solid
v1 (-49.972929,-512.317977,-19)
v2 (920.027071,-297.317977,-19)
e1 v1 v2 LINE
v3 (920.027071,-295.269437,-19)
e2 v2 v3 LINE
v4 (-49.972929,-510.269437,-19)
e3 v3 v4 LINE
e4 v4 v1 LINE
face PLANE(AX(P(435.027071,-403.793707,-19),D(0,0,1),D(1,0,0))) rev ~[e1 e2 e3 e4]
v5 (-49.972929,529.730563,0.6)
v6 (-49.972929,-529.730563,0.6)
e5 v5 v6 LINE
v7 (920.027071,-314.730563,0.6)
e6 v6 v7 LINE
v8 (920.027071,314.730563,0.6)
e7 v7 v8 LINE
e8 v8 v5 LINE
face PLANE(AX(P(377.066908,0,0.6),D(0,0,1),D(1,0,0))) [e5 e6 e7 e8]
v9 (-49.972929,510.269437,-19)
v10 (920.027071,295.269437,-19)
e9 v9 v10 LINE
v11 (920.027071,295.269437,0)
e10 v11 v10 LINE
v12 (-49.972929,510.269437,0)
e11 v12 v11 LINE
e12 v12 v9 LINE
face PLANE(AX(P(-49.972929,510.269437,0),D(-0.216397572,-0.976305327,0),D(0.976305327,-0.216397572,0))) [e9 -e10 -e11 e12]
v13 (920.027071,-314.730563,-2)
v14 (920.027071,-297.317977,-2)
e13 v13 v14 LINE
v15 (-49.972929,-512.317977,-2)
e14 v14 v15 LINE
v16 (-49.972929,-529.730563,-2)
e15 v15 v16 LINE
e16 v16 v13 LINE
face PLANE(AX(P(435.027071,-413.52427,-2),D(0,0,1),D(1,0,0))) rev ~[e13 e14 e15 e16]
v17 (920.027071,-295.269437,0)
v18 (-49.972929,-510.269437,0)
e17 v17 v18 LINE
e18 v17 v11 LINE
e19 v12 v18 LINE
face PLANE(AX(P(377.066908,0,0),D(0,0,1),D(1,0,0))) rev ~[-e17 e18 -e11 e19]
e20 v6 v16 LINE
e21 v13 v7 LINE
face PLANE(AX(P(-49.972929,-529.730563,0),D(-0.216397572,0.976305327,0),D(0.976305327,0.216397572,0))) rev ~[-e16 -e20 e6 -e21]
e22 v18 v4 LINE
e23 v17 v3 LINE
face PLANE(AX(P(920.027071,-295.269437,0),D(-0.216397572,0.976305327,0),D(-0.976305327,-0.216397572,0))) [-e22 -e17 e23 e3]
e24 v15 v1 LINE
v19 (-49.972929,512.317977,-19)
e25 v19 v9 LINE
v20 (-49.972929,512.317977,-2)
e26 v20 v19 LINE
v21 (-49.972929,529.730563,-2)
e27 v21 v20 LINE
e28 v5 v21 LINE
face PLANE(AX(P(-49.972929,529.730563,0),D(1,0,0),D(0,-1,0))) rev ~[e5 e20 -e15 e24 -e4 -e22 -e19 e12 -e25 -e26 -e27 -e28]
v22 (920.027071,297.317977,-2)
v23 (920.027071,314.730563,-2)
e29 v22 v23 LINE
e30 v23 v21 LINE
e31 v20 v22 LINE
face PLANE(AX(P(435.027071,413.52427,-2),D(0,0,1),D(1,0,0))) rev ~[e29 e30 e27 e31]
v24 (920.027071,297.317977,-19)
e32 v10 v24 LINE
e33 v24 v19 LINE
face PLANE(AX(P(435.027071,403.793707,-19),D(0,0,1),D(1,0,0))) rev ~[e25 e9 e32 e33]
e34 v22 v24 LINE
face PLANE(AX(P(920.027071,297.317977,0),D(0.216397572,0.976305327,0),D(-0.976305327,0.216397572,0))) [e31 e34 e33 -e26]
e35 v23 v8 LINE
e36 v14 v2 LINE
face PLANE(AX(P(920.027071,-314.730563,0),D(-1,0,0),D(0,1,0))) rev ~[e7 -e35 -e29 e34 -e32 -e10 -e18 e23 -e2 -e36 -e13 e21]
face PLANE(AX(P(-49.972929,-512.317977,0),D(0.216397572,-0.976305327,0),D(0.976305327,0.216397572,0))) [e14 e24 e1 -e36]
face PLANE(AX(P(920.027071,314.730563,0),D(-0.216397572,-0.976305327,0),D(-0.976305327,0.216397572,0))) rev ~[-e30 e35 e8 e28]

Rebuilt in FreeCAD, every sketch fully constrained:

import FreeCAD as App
import Part
import Sketcher

V = App.Vector


def add_polygon(sketch, points):
    """Adds a closed chain of lines whose ends are joined by coincident constraints."""
    first, n = sketch.GeometryCount, len(points)
    for a, b in zip(points, points[1:] + points[:1]):
        sketch.addGeometry(Part.LineSegment(App.Vector(*a, 0), App.Vector(*b, 0)), False)
    for i in range(n):
        sketch.addConstraint(Sketcher.Constraint("Coincident", first + i, 2, first + (i + 1) % n, 1))

doc = App.newDocument("Part")
params = doc.addObject("Spreadsheet::Sheet", "Params")
for row, (alias, value) in enumerate([
    ("pad1_length", "19 mm"),
    ("pad2_length", "2 mm"),
    ("pad3_length", "0.6 mm"),
], start=1):
    params.set(f"A{row}", alias)
    params.set(f"B{row}", "=" + value)
    params.setAlias(f"B{row}", alias)

body = doc.addObject("PartDesign::Body", "Body")
body.AllowCompound = True

sketch1 = doc.addObject("Sketcher::SketchObject", "Sketch")
body.addObject(sketch1)
sketch1.AttachmentSupport = (doc.XY_Plane, [""])
sketch1.MapMode = "FlatFace"
add_polygon(sketch1, [(920.027071, -297.317977), (920.027071, -295.269437), (-49.972929, -510.269437), (-49.972929, -512.317977)])
add_polygon(sketch1, [(-49.972929, 510.269437), (920.027071, 295.269437), (920.027071, 297.317977), (-49.972929, 512.317977)])
sketch1.addConstraint([
    Sketcher.Constraint("Vertical", 0),
    Sketcher.Constraint("Vertical", 2),
    Sketcher.Constraint("Vertical", 5),
    Sketcher.Constraint("Vertical", 7),
    Sketcher.Constraint("Symmetric", 0, 2, 4, 2, -1),
    Sketcher.Constraint("Symmetric", 2, 2, 6, 2, -1),
    Sketcher.Constraint("Parallel", 1, 3),
    Sketcher.Constraint("Parallel", 4, 6),
    Sketcher.Constraint("Equal", 2, 5),
    Sketcher.Constraint("DistanceX", 1, 2, 0, 2, 970.0),
    Sketcher.Constraint("DistanceY", 1, 2, 0, 2, 215.0),
    Sketcher.Constraint("DistanceY", 0, 1, 0, 2, 2.04854),
    Sketcher.Constraint("DistanceX", -1, 1, 0, 2, 920.027071),
    Sketcher.Constraint("DistanceY", 0, 2, -1, 1, 295.269437),
])
pad1 = doc.addObject("PartDesign::Pad", "Pad")
body.addObject(pad1)
pad1.Profile = sketch1
pad1.setExpression("Length", "Params.pad1_length")
pad1.Reversed = True

sketch2 = doc.addObject("Sketcher::SketchObject", "Sketch001")
body.addObject(sketch2)
sketch2.AttachmentSupport = (doc.XY_Plane, [""])
sketch2.MapMode = "FlatFace"
add_polygon(sketch2, [(-49.972929, 512.317977), (920.027071, 297.317977), (920.027071, 314.730563), (-49.972929, 529.730563)])
add_polygon(sketch2, [(920.027071, -297.317977), (-49.972929, -512.317977), (-49.972929, -529.730563), (920.027071, -314.730563)])
sketch2.addConstraint([
    Sketcher.Constraint("Vertical", 1),
    Sketcher.Constraint("Vertical", 3),
    Sketcher.Constraint("Vertical", 5),
    Sketcher.Constraint("Vertical", 7),
    Sketcher.Constraint("Symmetric", 3, 2, 4, 2, -1),
    Sketcher.Constraint("Symmetric", 1, 2, 6, 2, -1),
    Sketcher.Constraint("Parallel", 0, 2),
    Sketcher.Constraint("Parallel", 4, 6),
    Sketcher.Constraint("Equal", 3, 5),
    Sketcher.Constraint("DistanceX", 2, 2, 1, 2, 970.0),
    Sketcher.Constraint("DistanceY", 1, 2, 2, 2, 215.0),
    Sketcher.Constraint("DistanceY", 1, 1, 1, 2, 17.412586),
    Sketcher.Constraint("DistanceX", -1, 1, 0, 2, 920.027071),
    Sketcher.Constraint("DistanceY", 4, 2, 2, 2, 1042.04854),
])
pad2 = doc.addObject("PartDesign::Pad", "Pad001")
body.addObject(pad2)
pad2.Profile = sketch2
pad2.setExpression("Length", "Params.pad2_length")
pad2.Reversed = True

sketch3 = doc.addObject("Sketcher::SketchObject", "Sketch002")
body.addObject(sketch3)
sketch3.AttachmentSupport = (doc.XY_Plane, [""])
sketch3.MapMode = "FlatFace"
add_polygon(sketch3, [(-49.972929, -529.730563), (920.027071, -314.730563), (920.027071, 314.730563), (-49.972929, 529.730563)])
sketch3.addConstraint([
    Sketcher.Constraint("Vertical", 1),
    Sketcher.Constraint("Vertical", 3),
    Sketcher.Constraint("Equal", 0, 2),
    Sketcher.Constraint("DistanceX", 2, 2, 1, 2, 970.0),
    Sketcher.Constraint("DistanceY", 1, 2, 2, 2, 215.0),
    Sketcher.Constraint("DistanceY", 1, 1, 1, 2, 629.461126),
    Sketcher.Constraint("DistanceX", -1, 1, 0, 2, 920.027071),
    Sketcher.Constraint("DistanceY", 0, 2, -1, 1, 314.730563),
])
pad3 = doc.addObject("PartDesign::Pad", "Pad002")
body.addObject(pad3)
pad3.Profile = sketch3
pad3.setExpression("Length", "Params.pad3_length")

doc.recompute()
